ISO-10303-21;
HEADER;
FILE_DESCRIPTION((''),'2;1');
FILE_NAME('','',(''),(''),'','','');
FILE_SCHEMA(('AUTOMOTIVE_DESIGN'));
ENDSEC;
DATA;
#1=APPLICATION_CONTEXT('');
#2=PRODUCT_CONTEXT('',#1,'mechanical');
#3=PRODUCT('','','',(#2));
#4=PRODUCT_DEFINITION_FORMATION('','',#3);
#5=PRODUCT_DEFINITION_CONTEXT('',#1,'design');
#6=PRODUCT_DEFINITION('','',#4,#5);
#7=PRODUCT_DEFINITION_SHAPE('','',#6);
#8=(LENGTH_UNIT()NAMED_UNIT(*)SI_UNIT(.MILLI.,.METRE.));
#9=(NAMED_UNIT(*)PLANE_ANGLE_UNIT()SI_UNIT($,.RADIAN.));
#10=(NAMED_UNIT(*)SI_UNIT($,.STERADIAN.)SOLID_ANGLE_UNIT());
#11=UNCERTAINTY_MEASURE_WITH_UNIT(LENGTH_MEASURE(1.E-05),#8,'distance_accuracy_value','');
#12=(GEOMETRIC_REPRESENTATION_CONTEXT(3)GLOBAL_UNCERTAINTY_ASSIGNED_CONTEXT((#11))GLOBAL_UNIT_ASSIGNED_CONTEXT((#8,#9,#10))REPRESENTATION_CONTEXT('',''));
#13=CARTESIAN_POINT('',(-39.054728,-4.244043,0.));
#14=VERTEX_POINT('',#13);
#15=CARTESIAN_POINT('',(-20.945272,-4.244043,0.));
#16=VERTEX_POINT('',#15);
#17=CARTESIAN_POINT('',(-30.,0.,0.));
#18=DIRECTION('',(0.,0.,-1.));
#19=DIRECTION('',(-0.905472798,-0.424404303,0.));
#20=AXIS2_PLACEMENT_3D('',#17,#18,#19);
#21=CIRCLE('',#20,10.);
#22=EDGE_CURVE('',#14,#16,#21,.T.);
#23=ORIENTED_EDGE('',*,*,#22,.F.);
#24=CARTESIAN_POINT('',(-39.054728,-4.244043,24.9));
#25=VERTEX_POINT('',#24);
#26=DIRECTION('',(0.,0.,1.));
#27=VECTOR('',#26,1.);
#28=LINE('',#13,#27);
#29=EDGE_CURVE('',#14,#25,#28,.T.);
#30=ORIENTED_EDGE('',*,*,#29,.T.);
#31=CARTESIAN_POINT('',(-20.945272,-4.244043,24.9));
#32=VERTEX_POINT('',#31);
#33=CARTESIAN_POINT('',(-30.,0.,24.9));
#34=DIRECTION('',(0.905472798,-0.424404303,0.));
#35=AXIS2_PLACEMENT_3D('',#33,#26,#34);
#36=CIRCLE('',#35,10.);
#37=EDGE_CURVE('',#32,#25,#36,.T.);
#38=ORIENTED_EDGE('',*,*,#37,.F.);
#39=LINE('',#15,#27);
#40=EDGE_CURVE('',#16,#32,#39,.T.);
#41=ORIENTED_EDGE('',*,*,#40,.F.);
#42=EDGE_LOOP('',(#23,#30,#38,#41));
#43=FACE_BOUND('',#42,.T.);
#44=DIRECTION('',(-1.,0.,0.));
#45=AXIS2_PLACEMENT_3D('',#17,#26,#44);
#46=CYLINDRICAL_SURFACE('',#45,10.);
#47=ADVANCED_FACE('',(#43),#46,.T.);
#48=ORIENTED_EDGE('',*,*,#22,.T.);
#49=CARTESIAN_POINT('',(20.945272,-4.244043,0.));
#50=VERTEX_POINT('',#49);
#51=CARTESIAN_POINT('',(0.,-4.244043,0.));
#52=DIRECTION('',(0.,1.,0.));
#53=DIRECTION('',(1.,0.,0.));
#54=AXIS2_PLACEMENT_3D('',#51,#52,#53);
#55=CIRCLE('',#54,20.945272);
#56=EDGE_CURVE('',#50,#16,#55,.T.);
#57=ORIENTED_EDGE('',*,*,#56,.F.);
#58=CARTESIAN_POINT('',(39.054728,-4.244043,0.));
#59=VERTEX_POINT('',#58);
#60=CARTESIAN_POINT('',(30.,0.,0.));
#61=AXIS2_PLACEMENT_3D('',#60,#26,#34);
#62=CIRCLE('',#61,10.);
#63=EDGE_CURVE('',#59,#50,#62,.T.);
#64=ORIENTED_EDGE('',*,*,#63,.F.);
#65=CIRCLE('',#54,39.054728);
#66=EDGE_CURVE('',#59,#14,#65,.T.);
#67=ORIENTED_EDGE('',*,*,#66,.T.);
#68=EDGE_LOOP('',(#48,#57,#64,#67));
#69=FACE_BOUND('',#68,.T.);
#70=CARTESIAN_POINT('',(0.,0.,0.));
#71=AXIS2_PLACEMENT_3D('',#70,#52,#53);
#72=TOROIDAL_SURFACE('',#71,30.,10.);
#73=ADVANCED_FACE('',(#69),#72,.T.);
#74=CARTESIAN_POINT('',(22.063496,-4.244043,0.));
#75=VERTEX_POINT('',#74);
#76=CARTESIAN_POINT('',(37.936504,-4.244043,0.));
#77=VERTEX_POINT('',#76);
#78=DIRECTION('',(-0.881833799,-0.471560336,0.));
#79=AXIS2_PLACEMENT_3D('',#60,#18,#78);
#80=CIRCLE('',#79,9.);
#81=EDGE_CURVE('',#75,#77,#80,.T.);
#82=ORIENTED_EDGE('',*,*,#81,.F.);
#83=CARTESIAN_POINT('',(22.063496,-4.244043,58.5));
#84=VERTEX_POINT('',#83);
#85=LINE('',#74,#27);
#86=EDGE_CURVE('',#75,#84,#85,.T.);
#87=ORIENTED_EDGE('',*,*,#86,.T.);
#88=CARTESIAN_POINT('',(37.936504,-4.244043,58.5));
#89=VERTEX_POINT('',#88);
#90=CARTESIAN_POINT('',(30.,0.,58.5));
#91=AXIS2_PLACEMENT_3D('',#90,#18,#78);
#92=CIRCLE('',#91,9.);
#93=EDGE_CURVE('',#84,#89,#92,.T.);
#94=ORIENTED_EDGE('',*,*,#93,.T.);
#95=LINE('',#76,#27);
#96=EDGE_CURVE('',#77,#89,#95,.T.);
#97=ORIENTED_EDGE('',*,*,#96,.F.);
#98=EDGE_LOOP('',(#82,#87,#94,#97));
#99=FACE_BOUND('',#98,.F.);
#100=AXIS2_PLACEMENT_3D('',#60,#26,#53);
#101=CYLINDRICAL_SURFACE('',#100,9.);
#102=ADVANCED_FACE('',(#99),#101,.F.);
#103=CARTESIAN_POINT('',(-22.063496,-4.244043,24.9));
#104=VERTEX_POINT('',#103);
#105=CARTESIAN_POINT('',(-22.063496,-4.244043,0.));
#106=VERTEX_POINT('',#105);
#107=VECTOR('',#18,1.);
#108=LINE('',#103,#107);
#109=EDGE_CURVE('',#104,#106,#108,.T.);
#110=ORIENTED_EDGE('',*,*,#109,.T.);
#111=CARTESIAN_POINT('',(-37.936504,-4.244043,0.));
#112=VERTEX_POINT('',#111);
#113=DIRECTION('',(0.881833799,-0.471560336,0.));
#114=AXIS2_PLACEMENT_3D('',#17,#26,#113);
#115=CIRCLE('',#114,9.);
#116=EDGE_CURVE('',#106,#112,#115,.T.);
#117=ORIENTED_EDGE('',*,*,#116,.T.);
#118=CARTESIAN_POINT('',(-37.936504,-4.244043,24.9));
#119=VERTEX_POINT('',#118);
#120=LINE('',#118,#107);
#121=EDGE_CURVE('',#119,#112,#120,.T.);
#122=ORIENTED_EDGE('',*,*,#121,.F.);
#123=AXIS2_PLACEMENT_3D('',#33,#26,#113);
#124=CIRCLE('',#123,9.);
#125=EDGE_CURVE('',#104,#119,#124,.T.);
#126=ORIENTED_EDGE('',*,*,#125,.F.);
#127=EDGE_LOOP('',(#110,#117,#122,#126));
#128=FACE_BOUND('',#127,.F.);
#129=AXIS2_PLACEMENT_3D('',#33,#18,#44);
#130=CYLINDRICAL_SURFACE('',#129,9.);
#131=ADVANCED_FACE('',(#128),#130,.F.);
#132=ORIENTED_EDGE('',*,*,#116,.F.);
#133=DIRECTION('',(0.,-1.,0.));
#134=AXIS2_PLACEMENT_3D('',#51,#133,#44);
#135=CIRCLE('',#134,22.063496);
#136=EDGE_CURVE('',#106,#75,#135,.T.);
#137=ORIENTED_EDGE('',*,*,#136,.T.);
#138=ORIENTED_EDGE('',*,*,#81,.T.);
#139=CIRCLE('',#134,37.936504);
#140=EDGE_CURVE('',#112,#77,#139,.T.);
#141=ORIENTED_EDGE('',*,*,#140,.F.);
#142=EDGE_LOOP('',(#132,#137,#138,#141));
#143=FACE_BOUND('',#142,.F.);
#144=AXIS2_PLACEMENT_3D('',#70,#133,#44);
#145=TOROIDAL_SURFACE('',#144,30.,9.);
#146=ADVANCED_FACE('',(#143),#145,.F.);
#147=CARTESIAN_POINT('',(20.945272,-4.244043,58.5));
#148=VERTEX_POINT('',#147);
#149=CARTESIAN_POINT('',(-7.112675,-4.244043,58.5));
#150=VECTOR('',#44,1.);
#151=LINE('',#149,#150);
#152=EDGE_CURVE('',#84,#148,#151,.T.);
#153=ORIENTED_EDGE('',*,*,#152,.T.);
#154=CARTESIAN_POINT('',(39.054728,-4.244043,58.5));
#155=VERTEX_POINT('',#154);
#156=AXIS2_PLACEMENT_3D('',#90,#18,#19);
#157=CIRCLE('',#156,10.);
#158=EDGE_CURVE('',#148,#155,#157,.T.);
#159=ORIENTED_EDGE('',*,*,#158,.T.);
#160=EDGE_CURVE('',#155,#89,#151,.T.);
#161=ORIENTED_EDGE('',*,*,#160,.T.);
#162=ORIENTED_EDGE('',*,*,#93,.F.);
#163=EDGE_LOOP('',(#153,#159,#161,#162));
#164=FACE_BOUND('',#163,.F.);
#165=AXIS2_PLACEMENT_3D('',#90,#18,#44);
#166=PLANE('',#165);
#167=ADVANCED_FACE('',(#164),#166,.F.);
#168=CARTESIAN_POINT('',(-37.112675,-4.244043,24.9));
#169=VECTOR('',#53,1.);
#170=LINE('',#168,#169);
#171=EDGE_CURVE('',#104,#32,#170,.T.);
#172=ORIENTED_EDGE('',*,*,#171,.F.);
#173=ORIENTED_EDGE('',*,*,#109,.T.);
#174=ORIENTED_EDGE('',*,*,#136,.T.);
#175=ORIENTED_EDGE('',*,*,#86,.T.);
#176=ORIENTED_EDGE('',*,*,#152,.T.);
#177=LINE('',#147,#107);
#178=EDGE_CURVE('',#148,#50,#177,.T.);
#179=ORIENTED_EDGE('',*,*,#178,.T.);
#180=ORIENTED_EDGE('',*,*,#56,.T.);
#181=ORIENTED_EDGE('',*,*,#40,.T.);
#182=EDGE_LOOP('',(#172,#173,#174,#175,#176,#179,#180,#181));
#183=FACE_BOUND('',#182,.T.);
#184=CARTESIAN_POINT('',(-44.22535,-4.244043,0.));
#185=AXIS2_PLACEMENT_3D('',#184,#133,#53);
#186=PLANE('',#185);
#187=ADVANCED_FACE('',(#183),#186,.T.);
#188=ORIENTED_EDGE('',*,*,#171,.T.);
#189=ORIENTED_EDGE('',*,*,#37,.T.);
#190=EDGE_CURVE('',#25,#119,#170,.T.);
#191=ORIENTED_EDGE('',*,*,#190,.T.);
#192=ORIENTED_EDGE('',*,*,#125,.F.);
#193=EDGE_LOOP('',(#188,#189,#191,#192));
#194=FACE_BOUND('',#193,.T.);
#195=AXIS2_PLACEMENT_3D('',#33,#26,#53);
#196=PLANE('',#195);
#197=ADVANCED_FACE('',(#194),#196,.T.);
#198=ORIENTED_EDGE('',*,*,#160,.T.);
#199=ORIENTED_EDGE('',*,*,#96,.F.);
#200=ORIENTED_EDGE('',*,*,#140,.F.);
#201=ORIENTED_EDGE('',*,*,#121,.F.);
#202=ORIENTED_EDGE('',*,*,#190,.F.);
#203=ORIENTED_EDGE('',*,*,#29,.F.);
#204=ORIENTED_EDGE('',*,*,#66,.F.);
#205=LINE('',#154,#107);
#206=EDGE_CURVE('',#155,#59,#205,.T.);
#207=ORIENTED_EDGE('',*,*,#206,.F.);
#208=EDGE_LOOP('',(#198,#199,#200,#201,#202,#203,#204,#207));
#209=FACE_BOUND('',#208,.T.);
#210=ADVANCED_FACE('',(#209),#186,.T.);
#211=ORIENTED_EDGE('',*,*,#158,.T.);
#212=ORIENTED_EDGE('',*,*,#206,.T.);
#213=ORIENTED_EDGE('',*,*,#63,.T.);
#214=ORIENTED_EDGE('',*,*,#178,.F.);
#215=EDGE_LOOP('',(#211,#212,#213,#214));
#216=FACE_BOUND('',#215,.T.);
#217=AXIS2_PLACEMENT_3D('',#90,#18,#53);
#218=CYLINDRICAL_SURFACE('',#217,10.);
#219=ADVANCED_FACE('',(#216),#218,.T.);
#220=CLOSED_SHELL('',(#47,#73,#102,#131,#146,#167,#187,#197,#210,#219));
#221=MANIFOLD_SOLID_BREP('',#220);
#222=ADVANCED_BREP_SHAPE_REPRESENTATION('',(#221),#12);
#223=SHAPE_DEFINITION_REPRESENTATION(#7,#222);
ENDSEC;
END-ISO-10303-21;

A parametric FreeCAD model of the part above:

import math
import FreeCAD as App
import Part
import Sketcher

doc = App.newDocument("Part")
body = doc.addObject("PartDesign::Body", "Body")

# Sketch on XY plane
sketch1 = body.newObject("Sketcher::SketchObject", "Sketch")
sketch1.AttachmentSupport = (doc.getObject("XY_Plane"), [""])
sketch1.MapMode = "FlatFace"
sketch1.AttachmentOffset = App.Placement(App.Vector(0, 0, 58.5), App.Rotation())
sketch1.addGeometry(Part.Circle(App.Vector(30, 0, 0), App.Vector(0, 0, 1), 10), False)
sketch1.addConstraint(Sketcher.Constraint("PointOnObject", 0, 3, -1))
sketch1.addConstraint(Sketcher.Constraint("Diameter", 0, 20.0))
sketch1.addConstraint(Sketcher.Constraint("DistanceX", -1, 1, 0, 3, 30.0))

# Sketch on XZ plane
sketch2 = body.newObject("Sketcher::SketchObject", "Sketch001")
sketch2.AttachmentSupport = (doc.getObject("XZ_Plane"), [""])
sketch2.MapMode = "FlatFace"
sketch2.addGeometry(Part.LineSegment(App.Vector(30, 58, 0), App.Vector(30, 0, 0)), False)
sketch2.addGeometry(Part.ArcOfCircle(Part.Circle(App.Vector(0, 0, 0), App.Vector(0, 0, 1), 30), math.radians(180), math.radians(360)), False)
sketch2.addGeometry(Part.LineSegment(App.Vector(-30, 0, 0), App.Vector(-30, 25, 0)), False)
sketch2.addConstraint(Sketcher.Constraint("Tangent", 0, 2, 1, 2))
sketch2.addConstraint(Sketcher.Constraint("Tangent", 1, 1, 2, 1))
sketch2.addConstraint(Sketcher.Constraint("Vertical", 0))
sketch2.addConstraint(Sketcher.Constraint("Vertical", 2))
sketch2.addConstraint(Sketcher.Constraint("Coincident", 1, 3, -1, 1))
sketch2.addConstraint(Sketcher.Constraint("Radius", 1, 30.0))
sketch2.addConstraint(Sketcher.Constraint("DistanceY", 0, 2, 0, 1, 58.5))
sketch2.addConstraint(Sketcher.Constraint("DistanceY", 2, 1, 2, 2, 24.9))
doc.recompute()

additivepipe = body.newObject("PartDesign::AdditivePipe", "AdditivePipe")
additivepipe.Profile = sketch1
additivepipe.Spine = (sketch2, ["Edge1", "Edge2", "Edge3"])

# Sketch on XY plane
sketch3 = body.newObject("Sketcher::SketchObject", "Sketch002")
sketch3.AttachmentSupport = (doc.getObject("XY_Plane"), [""])
sketch3.MapMode = "FlatFace"
sketch3.AttachmentOffset = App.Placement(App.Vector(0, 0, 58.5), App.Rotation())
sketch3.addGeometry(Part.Circle(App.Vector(30, 0, 0), App.Vector(0, 0, 1), 9), False)
sketch3.addConstraint(Sketcher.Constraint("PointOnObject", 0, 3, -1))
sketch3.addConstraint(Sketcher.Constraint("Diameter", 0, 18.0))
sketch3.addConstraint(Sketcher.Constraint("DistanceX", -1, 1, 0, 3, 30.0))

# Sketch on XZ plane
sketch4 = body.newObject("Sketcher::SketchObject", "Sketch003")
sketch4.AttachmentSupport = (doc.getObject("XZ_Plane"), [""])
sketch4.MapMode = "FlatFace"
sketch4.addGeometry(Part.LineSegment(App.Vector(-30, 25, 0), App.Vector(-30, 0, 0)), False)
sketch4.addGeometry(Part.ArcOfCircle(Part.Circle(App.Vector(0, 0, 0), App.Vector(0, 0, 1), 30), math.radians(180), math.radians(360)), False)
sketch4.addGeometry(Part.LineSegment(App.Vector(30, 0, 0), App.Vector(30, 58, 0)), False)
sketch4.addConstraint(Sketcher.Constraint("Tangent", 0, 2, 1, 1))
sketch4.addConstraint(Sketcher.Constraint("Tangent", 1, 2, 2, 1))
sketch4.addConstraint(Sketcher.Constraint("Vertical", 0))
sketch4.addConstraint(Sketcher.Constraint("Vertical", 2))
sketch4.addConstraint(Sketcher.Constraint("Coincident", 1, 3, -1, 1))
sketch4.addConstraint(Sketcher.Constraint("Radius", 1, 30.0))
sketch4.addConstraint(Sketcher.Constraint("DistanceY", 0, 2, 0, 1, 24.9))
sketch4.addConstraint(Sketcher.Constraint("DistanceY", 2, 1, 2, 2, 58.5))
doc.recompute()

subtractivepipe = body.newObject("PartDesign::SubtractivePipe", "SubtractivePipe")
subtractivepipe.Profile = sketch3
subtractivepipe.Spine = (sketch4, ["Edge1", "Edge2", "Edge3"])
body2 = doc.addObject("PartDesign::Body", "Body001")

# Sketch on XY plane
sketch5 = body2.newObject("Sketcher::SketchObject", "Sketch004")
sketch5.AttachmentSupport = (doc.getObject("XY_Plane001"), [""])
sketch5.MapMode = "FlatFace"
sketch5.addGeometry(Part.LineSegment(App.Vector(-44, -4, 0), App.Vector(-44, -14, 0)), False)
sketch5.addGeometry(Part.LineSegment(App.Vector(-44, -14, 0), App.Vector(41, -14, 0)), False)
sketch5.addGeometry(Part.LineSegment(App.Vector(41, -14, 0), App.Vector(41, -4, 0)), False)
sketch5.addGeometry(Part.LineSegment(App.Vector(41, -4, 0), App.Vector(-44, -4, 0)), False)
sketch5.addConstraint(Sketcher.Constraint("Coincident", 0, 2, 1, 1))
sketch5.addConstraint(Sketcher.Constraint("Coincident", 1, 2, 2, 1))
sketch5.addConstraint(Sketcher.Constraint("Coincident", 2, 2, 3, 1))
sketch5.addConstraint(Sketcher.Constraint("Coincident", 3, 2, 0, 1))
sketch5.addConstraint(Sketcher.Constraint("Vertical", 0))
sketch5.addConstraint(Sketcher.Constraint("Horizontal", 1))
sketch5.addConstraint(Sketcher.Constraint("Vertical", 2))
sketch5.addConstraint(Sketcher.Constraint("Horizontal", 3))
sketch5.addConstraint(Sketcher.Constraint("DistanceX", 1, 1, 1, 2, 85.215416))
sketch5.addConstraint(Sketcher.Constraint("DistanceY", 0, 2, 0, 1, 10.072555))
sketch5.addConstraint(Sketcher.Constraint("DistanceX", 0, 2, -1, 1, 44.22535))
sketch5.addConstraint(Sketcher.Constraint("DistanceY", 0, 2, -1, 1, 14.316598))
pad1 = body2.newObject("PartDesign::Pad", "Pad")
pad1.Profile = sketch5
pad1.Length = 120
pad1.Midplane = True
doc.recompute()

boolean = body.newObject("PartDesign::Boolean", "Boolean")
boolean.Type = "Cut"
boolean.addObjects([body2])

doc.recompute()
